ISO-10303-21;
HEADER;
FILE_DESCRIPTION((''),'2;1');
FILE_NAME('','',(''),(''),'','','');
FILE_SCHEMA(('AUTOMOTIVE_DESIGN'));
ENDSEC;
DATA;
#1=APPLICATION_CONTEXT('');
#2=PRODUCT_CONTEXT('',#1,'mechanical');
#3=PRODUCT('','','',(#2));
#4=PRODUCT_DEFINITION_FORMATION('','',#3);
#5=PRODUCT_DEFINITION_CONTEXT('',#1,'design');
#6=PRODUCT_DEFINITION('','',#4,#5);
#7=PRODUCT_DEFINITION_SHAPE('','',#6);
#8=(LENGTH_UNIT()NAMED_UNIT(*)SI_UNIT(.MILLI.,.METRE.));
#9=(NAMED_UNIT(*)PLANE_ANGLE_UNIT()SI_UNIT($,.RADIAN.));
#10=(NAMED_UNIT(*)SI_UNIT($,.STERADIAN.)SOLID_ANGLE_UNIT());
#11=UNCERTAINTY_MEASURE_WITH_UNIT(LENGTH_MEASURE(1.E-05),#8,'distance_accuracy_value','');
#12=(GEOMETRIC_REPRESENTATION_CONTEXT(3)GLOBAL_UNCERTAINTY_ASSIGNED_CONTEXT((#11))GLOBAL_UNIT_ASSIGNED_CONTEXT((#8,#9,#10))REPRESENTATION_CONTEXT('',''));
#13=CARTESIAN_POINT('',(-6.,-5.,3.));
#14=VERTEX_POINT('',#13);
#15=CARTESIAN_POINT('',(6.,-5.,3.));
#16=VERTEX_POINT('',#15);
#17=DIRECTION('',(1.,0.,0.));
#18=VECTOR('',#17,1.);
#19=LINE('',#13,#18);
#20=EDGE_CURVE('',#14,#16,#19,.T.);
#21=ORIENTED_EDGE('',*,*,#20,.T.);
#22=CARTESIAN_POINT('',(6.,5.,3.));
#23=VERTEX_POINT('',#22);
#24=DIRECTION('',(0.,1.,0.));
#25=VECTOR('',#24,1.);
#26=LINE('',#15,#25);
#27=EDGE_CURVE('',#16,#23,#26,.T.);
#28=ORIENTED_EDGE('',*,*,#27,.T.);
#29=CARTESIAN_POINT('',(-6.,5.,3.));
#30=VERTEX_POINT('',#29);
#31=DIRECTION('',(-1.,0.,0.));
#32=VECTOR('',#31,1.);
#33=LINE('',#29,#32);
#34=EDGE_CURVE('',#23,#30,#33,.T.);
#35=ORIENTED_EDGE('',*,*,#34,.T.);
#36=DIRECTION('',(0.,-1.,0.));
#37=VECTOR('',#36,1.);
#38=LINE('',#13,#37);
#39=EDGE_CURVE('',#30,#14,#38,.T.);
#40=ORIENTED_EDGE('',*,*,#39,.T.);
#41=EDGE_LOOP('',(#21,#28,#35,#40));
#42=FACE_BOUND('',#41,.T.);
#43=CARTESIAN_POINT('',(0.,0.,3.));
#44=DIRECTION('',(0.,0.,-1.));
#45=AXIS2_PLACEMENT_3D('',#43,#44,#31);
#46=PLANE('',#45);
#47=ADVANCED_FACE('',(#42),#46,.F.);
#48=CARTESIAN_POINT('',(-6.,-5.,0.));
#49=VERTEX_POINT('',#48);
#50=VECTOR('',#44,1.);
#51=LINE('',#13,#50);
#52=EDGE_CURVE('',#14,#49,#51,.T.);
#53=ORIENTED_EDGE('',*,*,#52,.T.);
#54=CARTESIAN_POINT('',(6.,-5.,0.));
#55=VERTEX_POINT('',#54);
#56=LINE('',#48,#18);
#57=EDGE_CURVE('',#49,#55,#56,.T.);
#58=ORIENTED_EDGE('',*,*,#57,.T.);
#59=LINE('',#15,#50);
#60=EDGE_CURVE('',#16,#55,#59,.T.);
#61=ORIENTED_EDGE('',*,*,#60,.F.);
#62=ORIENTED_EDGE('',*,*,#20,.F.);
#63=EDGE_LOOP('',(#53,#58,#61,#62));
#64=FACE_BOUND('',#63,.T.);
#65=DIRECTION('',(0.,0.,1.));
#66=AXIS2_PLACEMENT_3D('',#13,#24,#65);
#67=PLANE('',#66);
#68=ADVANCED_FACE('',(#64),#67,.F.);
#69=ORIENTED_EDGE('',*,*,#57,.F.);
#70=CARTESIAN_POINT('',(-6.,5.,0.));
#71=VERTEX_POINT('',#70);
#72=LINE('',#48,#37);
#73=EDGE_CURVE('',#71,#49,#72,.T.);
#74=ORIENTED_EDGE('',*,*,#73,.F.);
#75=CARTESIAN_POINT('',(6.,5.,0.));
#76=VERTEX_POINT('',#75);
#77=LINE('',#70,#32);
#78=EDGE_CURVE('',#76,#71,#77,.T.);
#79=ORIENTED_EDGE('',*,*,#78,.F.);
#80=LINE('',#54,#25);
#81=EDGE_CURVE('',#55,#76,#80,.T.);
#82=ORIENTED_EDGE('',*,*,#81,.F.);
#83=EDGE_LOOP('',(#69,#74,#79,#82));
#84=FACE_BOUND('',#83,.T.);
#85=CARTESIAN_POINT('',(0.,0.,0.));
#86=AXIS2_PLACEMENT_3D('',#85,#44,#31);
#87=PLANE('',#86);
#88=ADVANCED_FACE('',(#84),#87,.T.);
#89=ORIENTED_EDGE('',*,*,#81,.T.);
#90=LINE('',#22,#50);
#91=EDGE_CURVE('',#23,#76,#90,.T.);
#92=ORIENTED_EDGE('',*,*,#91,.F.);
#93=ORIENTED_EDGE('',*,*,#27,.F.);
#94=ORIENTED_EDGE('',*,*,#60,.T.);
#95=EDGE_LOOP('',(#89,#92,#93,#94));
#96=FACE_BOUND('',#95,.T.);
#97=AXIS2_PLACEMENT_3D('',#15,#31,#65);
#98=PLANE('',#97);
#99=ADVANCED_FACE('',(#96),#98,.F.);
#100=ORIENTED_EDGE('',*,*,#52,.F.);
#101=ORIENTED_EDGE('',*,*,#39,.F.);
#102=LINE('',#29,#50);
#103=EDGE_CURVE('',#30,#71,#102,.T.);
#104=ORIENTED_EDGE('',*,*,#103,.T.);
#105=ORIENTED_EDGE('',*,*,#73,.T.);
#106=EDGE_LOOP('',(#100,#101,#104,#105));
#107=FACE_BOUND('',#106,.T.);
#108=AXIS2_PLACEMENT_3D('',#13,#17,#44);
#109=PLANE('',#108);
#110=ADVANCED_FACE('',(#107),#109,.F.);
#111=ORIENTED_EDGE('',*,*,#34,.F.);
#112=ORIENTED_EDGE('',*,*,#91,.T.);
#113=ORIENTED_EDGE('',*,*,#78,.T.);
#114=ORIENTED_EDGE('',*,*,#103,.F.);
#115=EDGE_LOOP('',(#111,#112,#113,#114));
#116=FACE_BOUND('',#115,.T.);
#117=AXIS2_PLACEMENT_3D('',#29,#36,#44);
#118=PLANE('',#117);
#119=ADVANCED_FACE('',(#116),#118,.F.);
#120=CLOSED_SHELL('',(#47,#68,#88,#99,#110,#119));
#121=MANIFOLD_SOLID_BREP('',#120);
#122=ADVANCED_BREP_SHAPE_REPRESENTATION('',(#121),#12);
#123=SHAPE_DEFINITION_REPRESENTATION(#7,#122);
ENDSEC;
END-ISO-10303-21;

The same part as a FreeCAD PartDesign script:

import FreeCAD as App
import Part
import Sketcher
from FreeCAD import Vector
Q = App.Units.Quantity


def add_polygon(sketch, points):
    """Adds a closed chain of lines whose ends are joined by coincident constraints."""
    first, n = sketch.GeometryCount, len(points)
    for a, b in zip(points, points[1:] + points[:1]):
        sketch.addGeometry(Part.LineSegment(App.Vector(*a, 0), App.Vector(*b, 0)), False)
    for i in range(n):
        sketch.addConstraint(Sketcher.Constraint("Coincident", first + i, 2, first + (i + 1) % n, 1))

doc = App.newDocument("Part")
body = doc.addObject("PartDesign::Body", "Body")

# Sketch on XY plane
sketch1 = body.newObject("Sketcher::SketchObject", "Sketch")
sketch1.AttachmentSupport = (doc.getObject("XY_Plane"), [""])
sketch1.MapMode = "FlatFace"
add_polygon(sketch1, [(-6, 5), (-6, -5), (6, -5), (6, 5)])  # lines 0-3
sketch1.addConstraint([
    Sketcher.Constraint("Vertical", 0),
    Sketcher.Constraint("Horizontal", 1),
    Sketcher.Constraint("Vertical", 2),
    Sketcher.Constraint("Horizontal", 3),
    Sketcher.Constraint("Symmetric", 0, 2, 2, 2, -1, 1),
    Sketcher.Constraint("DistanceX", 1, 1, 1, 2, Q("12 mm")),
    Sketcher.Constraint("DistanceY", 0, 2, 0, 1, Q("10 mm")),
])
pad1 = body.newObject("PartDesign::Pad", "Pad")
pad1.Profile = sketch1
pad1.Length = 3

doc.recompute()
